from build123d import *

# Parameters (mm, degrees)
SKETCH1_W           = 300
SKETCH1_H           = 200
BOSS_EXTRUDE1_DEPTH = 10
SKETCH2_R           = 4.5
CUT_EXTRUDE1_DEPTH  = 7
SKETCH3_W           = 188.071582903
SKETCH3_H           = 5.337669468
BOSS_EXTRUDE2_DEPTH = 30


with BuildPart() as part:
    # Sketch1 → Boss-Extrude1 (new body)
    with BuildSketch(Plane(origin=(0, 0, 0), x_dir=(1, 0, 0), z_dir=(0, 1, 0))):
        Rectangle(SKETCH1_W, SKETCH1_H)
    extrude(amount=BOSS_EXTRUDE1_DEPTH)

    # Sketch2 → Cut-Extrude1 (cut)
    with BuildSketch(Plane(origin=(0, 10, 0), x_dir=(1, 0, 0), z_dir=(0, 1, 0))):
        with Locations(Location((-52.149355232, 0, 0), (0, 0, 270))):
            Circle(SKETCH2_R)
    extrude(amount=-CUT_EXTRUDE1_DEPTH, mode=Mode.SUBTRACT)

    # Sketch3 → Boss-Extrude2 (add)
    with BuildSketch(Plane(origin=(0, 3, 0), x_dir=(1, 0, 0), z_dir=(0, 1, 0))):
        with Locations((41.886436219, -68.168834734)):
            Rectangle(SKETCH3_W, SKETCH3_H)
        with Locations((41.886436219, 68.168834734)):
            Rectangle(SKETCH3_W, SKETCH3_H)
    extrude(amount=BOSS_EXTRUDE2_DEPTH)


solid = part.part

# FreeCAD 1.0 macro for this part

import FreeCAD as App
import Part
import Sketcher

V = App.Vector
Q = App.Units.Quantity


def add_polygon(sketch, points):
    """Adds a closed chain of lines whose ends are joined by coincident constraints."""
    first, n = sketch.GeometryCount, len(points)
    for a, b in zip(points, points[1:] + points[:1]):
        sketch.addGeometry(Part.LineSegment(App.Vector(*a, 0), App.Vector(*b, 0)), False)
    for i in range(n):
        sketch.addConstraint(Sketcher.Constraint("Coincident", first + i, 2, first + (i + 1) % n, 1))

doc = App.newDocument("Part")
params = doc.addObject("Spreadsheet::Sheet", "Params")
for row, (alias, value) in enumerate([
    ("sketch1_width", "300 mm"),
    ("sketch1_height", "200 mm"),
    ("pad1_length", "10 mm"),
    ("sketch2_diameter", "9 mm"),
    ("pocket1_length", "7 mm"),
    ("pad2_length", "30 mm"),
], start=1):
    params.set(f"A{row}", alias)
    params.set(f"B{row}", "=" + value)
    params.setAlias(f"B{row}", alias)

body = doc.addObject("PartDesign::Body", "Body")

# Sketch on XZ plane
sketch1 = body.newObject("Sketcher::SketchObject", "Sketch")
sketch1.AttachmentSupport = (doc.getObject("XZ_Plane"), [""])
sketch1.MapMode = "FlatFace"
add_polygon(sketch1, [(-150, -100), (-150, 100), (150, 100), (150, -100)])  # lines 0-3
sketch1.addConstraint([
    Sketcher.Constraint("Vertical", 0),
    Sketcher.Constraint("Horizontal", 1),
    Sketcher.Constraint("Vertical", 2),
    Sketcher.Constraint("Horizontal", 3),
    Sketcher.Constraint("Symmetric", 0, 2, 2, 2, -1, 1),
    Sketcher.Constraint("DistanceX", 1, 1, 1, 2, Q("300 mm")),
    Sketcher.Constraint("DistanceY", 0, 1, 0, 2, Q("200 mm")),
])
sketch1.setExpression("Constraints[9]", "Params.sketch1_width")
sketch1.setExpression("Constraints[10]", "Params.sketch1_height")
pad1 = body.newObject("PartDesign::Pad", "Pad")
pad1.Profile = sketch1
pad1.setExpression("Length", "Params.pad1_length")
pad1.Reversed = True

# Sketch on XZ plane
sketch2 = body.newObject("Sketcher::SketchObject", "Sketch001")
sketch2.AttachmentSupport = (doc.getObject("XZ_Plane"), [""])
sketch2.MapMode = "FlatFace"
sketch2.AttachmentOffset = App.Placement(V(0, 0, -10), App.Rotation())
sketch2.addGeometry(Part.Circle(V(-52.1, 0, 0), V(0, 0, 1), 4.5), False)
sketch2.addConstraint([
    Sketcher.Constraint("PointOnObject", 0, 3, -1),
    Sketcher.Constraint("Diameter", 0, Q("9 mm")),
    Sketcher.Constraint("DistanceX", 0, 3, -1, 1, Q("52.149355 mm")),
])
sketch2.setExpression("Constraints[1]", "Params.sketch2_diameter")
pocket1 = body.newObject("PartDesign::Pocket", "Pocket")
pocket1.Profile = sketch2
pocket1.setExpression("Length", "Params.pocket1_length")
pocket1.Reversed = True

# Sketch on XZ plane
sketch3 = body.newObject("Sketcher::SketchObject", "Sketch002")
sketch3.AttachmentSupport = (doc.getObject("XZ_Plane"), [""])
sketch3.MapMode = "FlatFace"
sketch3.AttachmentOffset = App.Placement(V(0, 0, -3), App.Rotation())
add_polygon(sketch3, [(-52, 66), (-52, 71), (136, 71), (136, 66)])  # lines 0-3
add_polygon(sketch3, [(-52, -71), (-52, -66), (136, -66), (136, -71)])  # lines 4-7
sketch3.addConstraint([
    Sketcher.Constraint("Vertical", 0),
    Sketcher.Constraint("Horizontal", 1),
    Sketcher.Constraint("Vertical", 2),
    Sketcher.Constraint("Horizontal", 3),
    Sketcher.Constraint("Vertical", 4),
    Sketcher.Constraint("Horizontal", 5),
    Sketcher.Constraint("Vertical", 6),
    Sketcher.Constraint("Horizontal", 7),
    Sketcher.Constraint("Symmetric", 3, 2, 4, 2, -1),
    Sketcher.Constraint("Symmetric", 1, 2, 6, 2, -1),
    Sketcher.Constraint("DistanceY", 4, 2, 3, 2, Q("131 mm")),
    Sketcher.Constraint("DistanceY", 0, 1, 0, 2, Q("5.337669 mm")),
    Sketcher.Constraint("DistanceX", 1, 1, 1, 2, Q("188.071583 mm")),
    Sketcher.Constraint("DistanceX", 0, 2, -1, 1, Q("52.149355 mm")),
])
pad2 = body.newObject("PartDesign::Pad", "Pad001")
pad2.Profile = sketch3
pad2.setExpression("Length", "Params.pad2_length")
pad2.Reversed = True

doc.recompute()
